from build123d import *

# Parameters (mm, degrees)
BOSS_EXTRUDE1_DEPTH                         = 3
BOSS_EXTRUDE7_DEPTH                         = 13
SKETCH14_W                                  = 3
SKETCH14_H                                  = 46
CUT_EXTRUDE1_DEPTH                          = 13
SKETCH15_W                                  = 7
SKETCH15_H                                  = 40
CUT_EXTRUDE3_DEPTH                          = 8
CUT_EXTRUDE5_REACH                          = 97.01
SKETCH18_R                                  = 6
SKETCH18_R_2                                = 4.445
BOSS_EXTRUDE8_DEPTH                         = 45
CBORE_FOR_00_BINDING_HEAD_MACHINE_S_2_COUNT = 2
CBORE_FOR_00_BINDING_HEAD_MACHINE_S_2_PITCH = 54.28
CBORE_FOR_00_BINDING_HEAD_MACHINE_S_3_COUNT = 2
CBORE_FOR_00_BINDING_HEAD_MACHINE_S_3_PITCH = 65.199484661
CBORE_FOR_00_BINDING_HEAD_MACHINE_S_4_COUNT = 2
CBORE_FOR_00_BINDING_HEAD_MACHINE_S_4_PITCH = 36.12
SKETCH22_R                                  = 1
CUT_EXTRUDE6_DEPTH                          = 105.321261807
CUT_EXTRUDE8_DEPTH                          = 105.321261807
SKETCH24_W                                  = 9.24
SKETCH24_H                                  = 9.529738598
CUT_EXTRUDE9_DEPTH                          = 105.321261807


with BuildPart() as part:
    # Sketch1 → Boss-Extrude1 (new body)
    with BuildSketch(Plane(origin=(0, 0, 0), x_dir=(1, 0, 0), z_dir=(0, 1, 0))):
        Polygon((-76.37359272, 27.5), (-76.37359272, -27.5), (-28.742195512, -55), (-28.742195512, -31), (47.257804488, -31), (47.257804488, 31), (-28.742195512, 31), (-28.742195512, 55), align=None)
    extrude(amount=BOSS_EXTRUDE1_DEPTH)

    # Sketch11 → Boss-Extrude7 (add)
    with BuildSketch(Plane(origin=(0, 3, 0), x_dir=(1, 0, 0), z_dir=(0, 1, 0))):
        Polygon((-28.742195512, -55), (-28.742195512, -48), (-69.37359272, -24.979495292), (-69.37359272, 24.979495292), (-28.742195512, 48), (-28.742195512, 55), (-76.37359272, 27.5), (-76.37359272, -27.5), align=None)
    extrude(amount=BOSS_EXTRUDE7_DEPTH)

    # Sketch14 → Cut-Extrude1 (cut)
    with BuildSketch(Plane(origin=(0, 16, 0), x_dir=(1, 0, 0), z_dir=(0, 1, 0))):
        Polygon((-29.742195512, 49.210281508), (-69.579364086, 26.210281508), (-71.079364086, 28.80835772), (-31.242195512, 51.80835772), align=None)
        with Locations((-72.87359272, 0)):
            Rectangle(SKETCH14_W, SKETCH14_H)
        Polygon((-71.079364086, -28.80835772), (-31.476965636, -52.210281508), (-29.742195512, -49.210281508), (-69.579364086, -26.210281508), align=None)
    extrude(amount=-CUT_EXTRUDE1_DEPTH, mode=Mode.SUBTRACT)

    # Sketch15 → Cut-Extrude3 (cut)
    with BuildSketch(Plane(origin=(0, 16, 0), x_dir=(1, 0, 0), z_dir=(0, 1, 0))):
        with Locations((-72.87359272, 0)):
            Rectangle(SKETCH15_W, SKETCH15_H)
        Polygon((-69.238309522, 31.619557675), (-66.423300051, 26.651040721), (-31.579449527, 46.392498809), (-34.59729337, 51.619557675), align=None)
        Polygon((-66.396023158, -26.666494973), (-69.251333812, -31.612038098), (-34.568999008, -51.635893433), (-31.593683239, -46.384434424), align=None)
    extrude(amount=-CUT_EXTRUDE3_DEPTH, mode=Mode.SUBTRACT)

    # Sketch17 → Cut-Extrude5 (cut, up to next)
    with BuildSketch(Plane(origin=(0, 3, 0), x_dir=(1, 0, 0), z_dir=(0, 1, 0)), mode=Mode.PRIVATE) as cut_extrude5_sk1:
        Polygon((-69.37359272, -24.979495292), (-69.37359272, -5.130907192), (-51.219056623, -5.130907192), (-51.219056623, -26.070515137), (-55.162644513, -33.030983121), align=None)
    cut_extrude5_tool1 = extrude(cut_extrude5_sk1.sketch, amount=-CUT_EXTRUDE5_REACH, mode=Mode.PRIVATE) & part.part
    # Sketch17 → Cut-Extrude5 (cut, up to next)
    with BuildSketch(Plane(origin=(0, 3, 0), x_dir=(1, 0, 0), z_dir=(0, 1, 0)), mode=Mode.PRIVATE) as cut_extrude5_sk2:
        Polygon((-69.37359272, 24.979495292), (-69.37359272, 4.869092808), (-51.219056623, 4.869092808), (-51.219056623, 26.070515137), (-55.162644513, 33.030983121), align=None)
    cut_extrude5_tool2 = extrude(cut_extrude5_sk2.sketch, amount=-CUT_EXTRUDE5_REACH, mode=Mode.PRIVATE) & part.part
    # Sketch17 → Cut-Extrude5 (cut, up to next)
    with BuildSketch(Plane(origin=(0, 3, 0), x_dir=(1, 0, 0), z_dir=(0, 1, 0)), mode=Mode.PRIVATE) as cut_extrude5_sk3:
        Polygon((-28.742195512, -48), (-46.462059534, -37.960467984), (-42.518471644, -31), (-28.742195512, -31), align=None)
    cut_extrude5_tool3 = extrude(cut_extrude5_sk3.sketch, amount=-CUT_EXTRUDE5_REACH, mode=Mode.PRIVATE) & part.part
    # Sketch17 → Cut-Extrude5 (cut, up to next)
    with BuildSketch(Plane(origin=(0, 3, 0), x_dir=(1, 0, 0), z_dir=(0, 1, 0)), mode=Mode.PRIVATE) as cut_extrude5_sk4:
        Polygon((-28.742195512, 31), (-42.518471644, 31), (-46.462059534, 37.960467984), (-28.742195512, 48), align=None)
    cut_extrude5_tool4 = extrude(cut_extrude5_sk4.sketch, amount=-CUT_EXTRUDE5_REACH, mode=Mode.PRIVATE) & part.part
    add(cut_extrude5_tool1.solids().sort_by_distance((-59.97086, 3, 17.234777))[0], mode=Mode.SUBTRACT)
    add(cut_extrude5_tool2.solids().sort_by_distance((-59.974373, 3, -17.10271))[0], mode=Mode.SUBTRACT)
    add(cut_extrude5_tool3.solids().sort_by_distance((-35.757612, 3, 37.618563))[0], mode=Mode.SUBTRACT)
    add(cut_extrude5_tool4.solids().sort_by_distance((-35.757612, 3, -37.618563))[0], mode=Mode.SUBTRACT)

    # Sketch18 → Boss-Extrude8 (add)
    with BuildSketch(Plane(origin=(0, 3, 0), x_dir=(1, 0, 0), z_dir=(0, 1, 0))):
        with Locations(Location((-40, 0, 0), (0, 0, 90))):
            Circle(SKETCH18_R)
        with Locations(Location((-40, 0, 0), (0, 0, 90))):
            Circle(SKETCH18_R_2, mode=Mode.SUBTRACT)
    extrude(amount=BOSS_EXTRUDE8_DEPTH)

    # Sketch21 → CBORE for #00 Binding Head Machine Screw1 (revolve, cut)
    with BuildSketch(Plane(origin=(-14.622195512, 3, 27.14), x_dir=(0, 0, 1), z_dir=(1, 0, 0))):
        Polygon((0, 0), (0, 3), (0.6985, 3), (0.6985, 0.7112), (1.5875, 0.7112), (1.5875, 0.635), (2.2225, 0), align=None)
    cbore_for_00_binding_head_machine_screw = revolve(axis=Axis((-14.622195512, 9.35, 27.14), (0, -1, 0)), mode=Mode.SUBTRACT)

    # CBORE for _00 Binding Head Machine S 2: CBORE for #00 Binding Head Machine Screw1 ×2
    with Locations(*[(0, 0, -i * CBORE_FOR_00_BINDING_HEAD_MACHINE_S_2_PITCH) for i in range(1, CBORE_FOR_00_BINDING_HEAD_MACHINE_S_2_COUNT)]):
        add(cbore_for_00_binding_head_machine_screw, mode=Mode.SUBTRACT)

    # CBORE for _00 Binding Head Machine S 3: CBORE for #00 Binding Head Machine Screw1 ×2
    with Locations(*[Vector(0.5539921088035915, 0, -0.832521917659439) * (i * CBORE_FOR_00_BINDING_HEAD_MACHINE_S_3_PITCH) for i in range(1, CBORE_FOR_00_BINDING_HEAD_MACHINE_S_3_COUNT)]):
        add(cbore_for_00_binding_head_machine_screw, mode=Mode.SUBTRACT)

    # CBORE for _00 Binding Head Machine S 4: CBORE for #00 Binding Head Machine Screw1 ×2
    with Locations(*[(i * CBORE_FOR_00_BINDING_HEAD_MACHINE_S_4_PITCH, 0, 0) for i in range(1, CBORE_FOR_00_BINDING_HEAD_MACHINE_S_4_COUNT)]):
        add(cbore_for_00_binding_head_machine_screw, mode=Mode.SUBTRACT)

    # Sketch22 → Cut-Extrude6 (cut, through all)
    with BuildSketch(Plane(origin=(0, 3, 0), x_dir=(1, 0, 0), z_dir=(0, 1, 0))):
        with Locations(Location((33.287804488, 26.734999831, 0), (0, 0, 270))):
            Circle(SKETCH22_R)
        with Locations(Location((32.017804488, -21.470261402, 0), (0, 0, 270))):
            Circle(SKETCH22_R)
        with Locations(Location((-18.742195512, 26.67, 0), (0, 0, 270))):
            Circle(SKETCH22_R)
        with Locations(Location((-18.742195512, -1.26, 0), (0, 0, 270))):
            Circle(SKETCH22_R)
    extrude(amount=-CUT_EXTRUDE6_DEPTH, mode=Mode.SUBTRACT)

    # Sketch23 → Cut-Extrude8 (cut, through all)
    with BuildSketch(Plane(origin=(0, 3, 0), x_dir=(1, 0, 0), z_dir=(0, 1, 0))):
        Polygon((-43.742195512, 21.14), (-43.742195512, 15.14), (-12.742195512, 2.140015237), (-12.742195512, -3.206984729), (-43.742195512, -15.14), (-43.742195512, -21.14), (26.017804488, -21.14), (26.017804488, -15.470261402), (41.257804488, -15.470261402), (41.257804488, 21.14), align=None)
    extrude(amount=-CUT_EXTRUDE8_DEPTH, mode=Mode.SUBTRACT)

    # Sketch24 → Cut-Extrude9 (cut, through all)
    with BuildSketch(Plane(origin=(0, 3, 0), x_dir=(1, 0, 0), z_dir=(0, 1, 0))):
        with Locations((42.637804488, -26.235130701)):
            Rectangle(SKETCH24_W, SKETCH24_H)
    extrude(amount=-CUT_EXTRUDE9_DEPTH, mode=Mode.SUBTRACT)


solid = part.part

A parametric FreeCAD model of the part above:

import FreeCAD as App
import Part
import Sketcher

V = App.Vector
Q = App.Units.Quantity


def add_polygon(sketch, points):
    """Adds a closed chain of lines whose ends are joined by coincident constraints."""
    first, n = sketch.GeometryCount, len(points)
    for a, b in zip(points, points[1:] + points[:1]):
        sketch.addGeometry(Part.LineSegment(App.Vector(*a, 0), App.Vector(*b, 0)), False)
    for i in range(n):
        sketch.addConstraint(Sketcher.Constraint("Coincident", first + i, 2, first + (i + 1) % n, 1))

doc = App.newDocument("Part")
body = doc.addObject("PartDesign::Body", "Body")

sketch1 = body.newObject("Sketcher::SketchObject", "Sketch")
sketch1.AttachmentSupport = (doc.getObject("XZ_Plane"), [""])
sketch1.MapMode = "FlatFace"
add_polygon(sketch1, [(-76, -28), (-76, 28), (-29, 55), (-29, 31), (47, 31), (47, -31), (-29, -31), (-29, -55)])
sketch1.addConstraint(Sketcher.Constraint("Vertical", 0))
sketch1.addConstraint(Sketcher.Constraint("Vertical", 2))
sketch1.addConstraint(Sketcher.Constraint("Horizontal", 3))
sketch1.addConstraint(Sketcher.Constraint("Vertical", 4))
sketch1.addConstraint(Sketcher.Constraint("Horizontal", 5))
sketch1.addConstraint(Sketcher.Constraint("Vertical", 6))
sketch1.addConstraint(Sketcher.Constraint("Symmetric", 2, 2, 5, 2, -1))
sketch1.addConstraint(Sketcher.Constraint("Equal", 2, 6))
sketch1.addConstraint(Sketcher.Constraint("Equal", 1, 7))
sketch1.addConstraint(Sketcher.Constraint("DistanceX", 3, 1, 3, 2, Q("76 mm")))
sketch1.addConstraint(Sketcher.Constraint("DistanceY", 0, 1, 0, 2, Q("55 mm")))
sketch1.addConstraint(Sketcher.Constraint("DistanceY", 2, 2, 2, 1, Q("24 mm")))
sketch1.addConstraint(Sketcher.Constraint("DistanceY", 4, 2, 4, 1, Q("62 mm")))
sketch1.addConstraint(Sketcher.Constraint("Angle", 1, Q("30 deg")))
sketch1.addConstraint(Sketcher.Constraint("DistanceX", 0, 2, -1, 1, Q("76.373593 mm")))
pad1 = body.newObject("PartDesign::Pad", "Pad")
pad1.Profile = sketch1
pad1.Length = 3
pad1.Reversed = True

sketch2 = body.newObject("Sketcher::SketchObject", "Sketch001")
sketch2.AttachmentSupport = (doc.getObject("XZ_Plane"), [""])
sketch2.MapMode = "FlatFace"
sketch2.AttachmentOffset = App.Placement(V(0, 0, -3), App.Rotation())
add_polygon(sketch2, [(-29, 55), (-29, 48), (-69, 25), (-69, -25), (-29, -48), (-29, -55), (-76, -28), (-76, 28)])
sketch2.addConstraint(Sketcher.Constraint("Vertical", 0))
sketch2.addConstraint(Sketcher.Constraint("Vertical", 2))
sketch2.addConstraint(Sketcher.Constraint("Vertical", 4))
sketch2.addConstraint(Sketcher.Constraint("Vertical", 6))
sketch2.addConstraint(Sketcher.Constraint("Symmetric", 0, 2, 3, 2, -1))
sketch2.addConstraint(Sketcher.Constraint("Equal", 0, 4))
sketch2.addConstraint(Sketcher.Constraint("Equal", 1, 3))
sketch2.addConstraint(Sketcher.Constraint("Equal", 5, 7))
sketch2.addConstraint(Sketcher.Constraint("DistanceY", 0, 2, 0, 1, Q("7 mm")))
sketch2.addConstraint(Sketcher.Constraint("DistanceY", 6, 1, 6, 2, Q("55 mm")))
sketch2.addConstraint(Sketcher.Constraint("Angle", 5, Q("150 deg")))
sketch2.addConstraint(Sketcher.Constraint("Distance", 5, Q("55 mm")))
sketch2.addConstraint(Sketcher.Constraint("DistanceX", 5, 2, 2, 2, Q("7 mm")))
sketch2.addConstraint(Sketcher.Constraint("DistanceY", 2, 2, 2, 1, Q("49.958991 mm")))
sketch2.addConstraint(Sketcher.Constraint("DistanceX", 0, 2, -1, 1, Q("28.742196 mm")))
pad2 = body.newObject("PartDesign::Pad", "Pad001")
pad2.Profile = sketch2
pad2.Length = 13
pad2.Reversed = True

sketch3 = body.newObject("Sketcher::SketchObject", "Sketch002")
sketch3.AttachmentSupport = (doc.getObject("XZ_Plane"), [""])
sketch3.MapMode = "FlatFace"
sketch3.AttachmentOffset = App.Placement(V(0, 0, -16), App.Rotation())
add_polygon(sketch3, [(-69.6, -26.2), (-29.7, -49.2), (-31.2, -51.8), (-71.1, -28.8)])
add_polygon(sketch3, [(-74.4, -23), (-74.4, 23), (-71.4, 23), (-71.4, -23)])
add_polygon(sketch3, [(-71.1, 28.8), (-31.5, 52.2), (-29.7, 49.2), (-69.6, 26.2)])
sketch3.addConstraint(Sketcher.Constraint("Vertical", 4))
sketch3.addConstraint(Sketcher.Constraint("Horizontal", 5))
sketch3.addConstraint(Sketcher.Constraint("Vertical", 6))
sketch3.addConstraint(Sketcher.Constraint("Horizontal", 7))
sketch3.addConstraint(Sketcher.Constraint("Symmetric", 0, 2, 9, 2, -1))
sketch3.addConstraint(Sketcher.Constraint("Symmetric", 3, 2, 10, 2, -1))
sketch3.addConstraint(Sketcher.Constraint("Symmetric", 2, 2, 11, 2, -1))
sketch3.addConstraint(Sketcher.Constraint("Perpendicular", 0, 1))
sketch3.addConstraint(Sketcher.Constraint("Perpendicular", 1, 2))
sketch3.addConstraint(Sketcher.Constraint("Perpendicular", 2, 3))
sketch3.addConstraint(Sketcher.Constraint("Equal", 2, 8))
sketch3.addConstraint(Sketcher.Constraint("DistanceX", 5, 1, 5, 2, Q("3 mm")))
sketch3.addConstraint(Sketcher.Constraint("DistanceY", 4, 1, 4, 2, Q("46 mm")))
sketch3.addConstraint(Sketcher.Constraint("Angle", 0, Q("-30 deg")))
sketch3.addConstraint(Sketcher.Constraint("Distance", 0, Q("46 mm")))
sketch3.addConstraint(Sketcher.Constraint("Distance", 1, Q("3 mm")))
sketch3.addConstraint(Sketcher.Constraint("DistanceY", -1, 1, 4, 2, Q("23 mm")))
sketch3.addConstraint(Sketcher.Constraint("DistanceY", 9, 2, 8, 2, Q("3 mm")))
sketch3.addConstraint(Sketcher.Constraint("DistanceY", 0, 2, -1, 1, Q("49.210282 mm")))
sketch3.addConstraint(Sketcher.Constraint("DistanceX", 4, 2, 3, 2, Q("4.794229 mm")))
sketch3.addConstraint(Sketcher.Constraint("DistanceX", 0, 2, -1, 1, Q("29.742196 mm")))
pocket1 = body.newObject("PartDesign::Pocket", "Pocket")
pocket1.Profile = sketch3
pocket1.Length = 13
pocket1.Reversed = True

sketch4 = body.newObject("Sketcher::SketchObject", "Sketch003")
sketch4.AttachmentSupport = (doc.getObject("XZ_Plane"), [""])
sketch4.MapMode = "FlatFace"
sketch4.AttachmentOffset = App.Placement(V(0, 0, -16), App.Rotation())
add_polygon(sketch4, [(-76, -20), (-76, 20), (-69, 20), (-69, -20)])
add_polygon(sketch4, [(-69, -32), (-66, -27), (-32, -46), (-35, -52)])
add_polygon(sketch4, [(-66, 27), (-69, 32), (-35, 52), (-32, 46)])
sketch4.addConstraint(Sketcher.Constraint("Vertical", 0))
sketch4.addConstraint(Sketcher.Constraint("Horizontal", 1))
sketch4.addConstraint(Sketcher.Constraint("Vertical", 2))
sketch4.addConstraint(Sketcher.Constraint("Horizontal", 3))
sketch4.addConstraint(Sketcher.Constraint("Perpendicular", 4, 5))
sketch4.addConstraint(Sketcher.Constraint("Perpendicular", 6, 7))
sketch4.addConstraint(Sketcher.Constraint("Perpendicular", 8, 9))
sketch4.addConstraint(Sketcher.Constraint("Perpendicular", 10, 11))
sketch4.addConstraint(Sketcher.Constraint("Equal", 5, 9))
sketch4.addConstraint(Sketcher.Constraint("Equal", 7, 11))
sketch4.addConstraint(Sketcher.Constraint("DistanceX", 1, 1, 1, 2, Q("7 mm")))
sketch4.addConstraint(Sketcher.Constraint("DistanceY", 0, 1, 0, 2, Q("40 mm")))
sketch4.addConstraint(Sketcher.Constraint("Angle", 6, Q("-120 deg")))
sketch4.addConstraint(Sketcher.Constraint("Angle", 8, Q("120 deg")))
sketch4.addConstraint(Sketcher.Constraint("Distance", 7, Q("40 mm")))
sketch4.addConstraint(Sketcher.Constraint("DistanceY", -1, 1, 0, 2, Q("20 mm")))
sketch4.addConstraint(Sketcher.Constraint("DistanceX", 9, 2, -1, 1, Q("34.568999 mm")))
sketch4.addConstraint(Sketcher.Constraint("DistanceX", 4, 2, -1, 1, Q("66.4233 mm")))
sketch4.addConstraint(Sketcher.Constraint("DistanceY", 5, 2, -1, 1, Q("46.392499 mm")))
sketch4.addConstraint(Sketcher.Constraint("DistanceX", 2, 2, 6, 2, Q("34.776299 mm")))
sketch4.addConstraint(Sketcher.Constraint("DistanceY", 11, 2, 9, 2, Q("24.969398 mm")))
sketch4.addConstraint(Sketcher.Constraint("Distance", 5, Q("40.04771 mm")))
sketch4.addConstraint(Sketcher.Constraint("DistanceY", 4, 2, -1, 1, Q("26.651041 mm")))
sketch4.addConstraint(Sketcher.Constraint("DistanceY", -1, 1, 8, 2, Q("31.612038 mm")))
pocket2 = body.newObject("PartDesign::Pocket", "Pocket001")
pocket2.Profile = sketch4
pocket2.Length = 8
pocket2.Reversed = True

sketch5 = body.newObject("Sketcher::SketchObject", "Sketch004")
sketch5.AttachmentSupport = (doc.getObject("XZ_Plane"), [""])
sketch5.MapMode = "FlatFace"
sketch5.AttachmentOffset = App.Placement(V(0, 0, -3), App.Rotation())
add_polygon(sketch5, [(-69, 5), (-69, 25), (-55, 33), (-51, 26), (-51, 5)])
sketch5.addConstraint(Sketcher.Constraint("Vertical", 0))
sketch5.addConstraint(Sketcher.Constraint("Vertical", 3))
sketch5.addConstraint(Sketcher.Constraint("Horizontal", 4))
sketch5.addConstraint(Sketcher.Constraint("Perpendicular", 1, 2))
sketch5.addConstraint(Sketcher.Constraint("Distance", 2, Q("8 mm")))
sketch5.addConstraint(Sketcher.Constraint("DistanceY", 0, 1, 0, 2, Q("19.848588 mm")))
sketch5.addConstraint(Sketcher.Constraint("DistanceX", 4, 2, 4, 1, Q("18.154536 mm")))
sketch5.addConstraint(Sketcher.Constraint("DistanceY", 3, 2, 3, 1, Q("20.939608 mm")))
sketch5.addConstraint(Sketcher.Constraint("DistanceX", 0, 2, -1, 1, Q("69.373593 mm")))
sketch5.addConstraint(Sketcher.Constraint("DistanceY", -1, 1, 0, 2, Q("24.979495 mm")))
pocket3 = body.newObject("PartDesign::Pocket", "Pocket002")
pocket3.Profile = sketch5
pocket3.Type = "UpToFirst"
pocket3.Reversed = True

sketch6 = body.newObject("Sketcher::SketchObject", "Sketch005")
sketch6.AttachmentSupport = (doc.getObject("XZ_Plane"), [""])
sketch6.MapMode = "FlatFace"
sketch6.AttachmentOffset = App.Placement(V(0, 0, -3), App.Rotation())
add_polygon(sketch6, [(-69, -25), (-69, -5), (-51, -5), (-51, -26), (-55, -33)])
sketch6.addConstraint(Sketcher.Constraint("Vertical", 0))
sketch6.addConstraint(Sketcher.Constraint("Horizontal", 1))
sketch6.addConstraint(Sketcher.Constraint("Vertical", 2))
sketch6.addConstraint(Sketcher.Constraint("Perpendicular", 3, 4))
sketch6.addConstraint(Sketcher.Constraint("Distance", 3, Q("8 mm")))
sketch6.addConstraint(Sketcher.Constraint("DistanceX", 1, 1, 1, 2, Q("18.154536 mm")))
sketch6.addConstraint(Sketcher.Constraint("DistanceY", 0, 1, 0, 2, Q("20.110402 mm")))
sketch6.addConstraint(Sketcher.Constraint("DistanceY", 2, 2, 2, 1, Q("21.201422 mm")))
sketch6.addConstraint(Sketcher.Constraint("DistanceX", 0, 2, -1, 1, Q("69.373593 mm")))
sketch6.addConstraint(Sketcher.Constraint("DistanceY", 0, 2, -1, 1, Q("4.869093 mm")))
pocket4 = body.newObject("PartDesign::Pocket", "Pocket003")
pocket4.Profile = sketch6
pocket4.Type = "UpToFirst"
pocket4.Reversed = True

sketch7 = body.newObject("Sketcher::SketchObject", "Sketch006")
sketch7.AttachmentSupport = (doc.getObject("XZ_Plane"), [""])
sketch7.MapMode = "FlatFace"
sketch7.AttachmentOffset = App.Placement(V(0, 0, -3), App.Rotation())
add_polygon(sketch7, [(-46, 38), (-29, 48), (-29, 31), (-43, 31)])
sketch7.addConstraint(Sketcher.Constraint("Vertical", 1))
sketch7.addConstraint(Sketcher.Constraint("Horizontal", 2))
sketch7.addConstraint(Sketcher.Constraint("Perpendicular", 0, 3))
sketch7.addConstraint(Sketcher.Constraint("DistanceY", 1, 2, 1, 1, Q("17 mm")))
sketch7.addConstraint(Sketcher.Constraint("Distance", 3, Q("8 mm")))
sketch7.addConstraint(Sketcher.Constraint("DistanceY", -1, 1, 0, 2, Q("48 mm")))
sketch7.addConstraint(Sketcher.Constraint("Distance", 0, Q("20.36629 mm")))
sketch7.addConstraint(Sketcher.Constraint("DistanceX", 2, 2, -1, 1, Q("42.518472 mm")))
pocket5 = body.newObject("PartDesign::Pocket", "Pocket004")
pocket5.Profile = sketch7
pocket5.Type = "UpToFirst"
pocket5.Reversed = True

sketch8 = body.newObject("Sketcher::SketchObject", "Sketch007")
sketch8.AttachmentSupport = (doc.getObject("XZ_Plane"), [""])
sketch8.MapMode = "FlatFace"
sketch8.AttachmentOffset = App.Placement(V(0, 0, -3), App.Rotation())
add_polygon(sketch8, [(-43, -31), (-29, -31), (-29, -48), (-46, -38)])
sketch8.addConstraint(Sketcher.Constraint("Horizontal", 0))
sketch8.addConstraint(Sketcher.Constraint("Vertical", 1))
sketch8.addConstraint(Sketcher.Constraint("Perpendicular", 2, 3))
sketch8.addConstraint(Sketcher.Constraint("DistanceY", 1, 2, 1, 1, Q("17 mm")))
sketch8.addConstraint(Sketcher.Constraint("Distance", 3, Q("8 mm")))
sketch8.addConstraint(Sketcher.Constraint("DistanceY", 0, 2, -1, 1, Q("31 mm")))
sketch8.addConstraint(Sketcher.Constraint("Distance", 2, Q("20.36629 mm")))
sketch8.addConstraint(Sketcher.Constraint("DistanceX", 2, 2, -1, 1, Q("46.46206 mm")))
pocket6 = body.newObject("PartDesign::Pocket", "Pocket005")
pocket6.Profile = sketch8
pocket6.Type = "UpToFirst"
pocket6.Reversed = True

sketch9 = body.newObject("Sketcher::SketchObject", "Sketch008")
sketch9.AttachmentSupport = (doc.getObject("XZ_Plane"), [""])
sketch9.MapMode = "FlatFace"
sketch9.AttachmentOffset = App.Placement(V(0, 0, -3), App.Rotation())
sketch9.addGeometry(Part.Circle(V(-40, 0, 0), V(0, 0, 1), 6), False)
sketch9.addGeometry(Part.Circle(V(-40, 0, 0), V(0, 0, 1), 4.4), False)
sketch9.addConstraint(Sketcher.Constraint("Coincident", 1, 3, 0, 3))
sketch9.addConstraint(Sketcher.Constraint("PointOnObject", 0, 3, -1))
sketch9.addConstraint(Sketcher.Constraint("Diameter", 0, Q("12 mm")))
sketch9.addConstraint(Sketcher.Constraint("Diameter", 1, Q("8.89 mm")))
sketch9.addConstraint(Sketcher.Constraint("DistanceX", 0, 3, -1, 1, Q("40 mm")))
pad3 = body.newObject("PartDesign::Pad", "Pad002")
pad3.Profile = sketch9
pad3.Length = 45
pad3.Reversed = True

sketch10 = body.newObject("Sketcher::SketchObject", "Sketch009")
sketch10.AttachmentSupport = (doc.getObject("YZ_Plane"), [""])
sketch10.MapMode = "FlatFace"
sketch10.AttachmentOffset = App.Placement(V(0, 0, -14.622196), App.Rotation())
add_polygon(sketch10, [(0, 27.14), (3, 27.14), (3, 29.36), (2.37, 28.73), (2.29, 28.73), (2.29, 27.84), (0, 27.84)])
sketch10.addGeometry(Part.LineSegment(V(3, 27.14, 0), V(0, 27.14, 0)), True)
sketch10.addConstraint(Sketcher.Constraint("Horizontal", 0))
sketch10.addConstraint(Sketcher.Constraint("Vertical", 1))
sketch10.addConstraint(Sketcher.Constraint("Horizontal", 3))
sketch10.addConstraint(Sketcher.Constraint("Vertical", 4))
sketch10.addConstraint(Sketcher.Constraint("Horizontal", 5))
sketch10.addConstraint(Sketcher.Constraint("Vertical", 6))
sketch10.addConstraint(Sketcher.Constraint("Horizontal", 7))
sketch10.addConstraint(Sketcher.Constraint("Coincident", 7, 1, 0, 2))
sketch10.addConstraint(Sketcher.Constraint("PointOnObject", 5, 2, -2))
sketch10.addConstraint(Sketcher.Constraint("PointOnObject", 7, 2, -2))
sketch10.addConstraint(Sketcher.Constraint("DistanceX", 0, 1, 0, 2, Q("3 mm")))
sketch10.addConstraint(Sketcher.Constraint("Angle", 2, Q("-135 deg")))
sketch10.addConstraint(Sketcher.Constraint("DistanceY", 4, 2, 4, 1, Q("0.889 mm")))
sketch10.addConstraint(Sketcher.Constraint("DistanceY", -1, 1, 0, 2, Q("27.14 mm")))
sketch10.addConstraint(Sketcher.Constraint("DistanceX", 3, 2, 3, 1, Q("0.0762 mm")))
sketch10.addConstraint(Sketcher.Constraint("DistanceX", 5, 2, 5, 1, Q("2.2888 mm")))
sketch10.addConstraint(Sketcher.Constraint("DistanceY", 1, 1, 1, 2, Q("2.2225 mm")))
groove = body.newObject("PartDesign::Groove", "Groove")
groove.Profile = sketch10
groove.ReferenceAxis = (sketch10, ["Axis0"])
groove.Angle = 360
doc.recompute()

linearpattern = body.newObject("PartDesign::LinearPattern", "LinearPattern")
linearpattern.Originals = [groove]
linearpattern.Direction = (doc.getObject("Z_Axis"), [""])
linearpattern.Mode = "offset"
linearpattern.Offset = 54.28
linearpattern.Occurrences = 2
linearpattern.Reversed = True
body.Tip = linearpattern
doc.recompute()

datumline = body.newObject("PartDesign::Line", "DatumLine")
datumline.Placement = App.Placement(V(0, 0, 0), App.Rotation(V(0, 0, 1), V(0.553992109, 0, -0.832521918)))
linearpattern2 = body.newObject("PartDesign::LinearPattern", "LinearPattern001")
linearpattern2.Originals = [groove]
linearpattern2.Direction = (datumline, [""])
linearpattern2.Mode = "offset"
linearpattern2.Offset = 65.199485
linearpattern2.Occurrences = 2
body.Tip = linearpattern2
doc.recompute()

linearpattern3 = body.newObject("PartDesign::LinearPattern", "LinearPattern002")
linearpattern3.Originals = [groove]
linearpattern3.Direction = (doc.getObject("X_Axis"), [""])
linearpattern3.Mode = "offset"
linearpattern3.Offset = 36.12
linearpattern3.Occurrences = 2
body.Tip = linearpattern3

sketch11 = body.newObject("Sketcher::SketchObject", "Sketch010")
sketch11.AttachmentSupport = (doc.getObject("XZ_Plane"), [""])
sketch11.MapMode = "FlatFace"
sketch11.AttachmentOffset = App.Placement(V(0, 0, -3), App.Rotation())
sketch11.addGeometry(Part.Circle(V(33.3, -26.7, 0), V(0, 0, 1), 1), False)
sketch11.addGeometry(Part.Circle(V(32, 21.5, 0), V(0, 0, 1), 1), False)
sketch11.addGeometry(Part.Circle(V(-18.7, -26.7, 0), V(0, 0, 1), 1), False)
sketch11.addGeometry(Part.Circle(V(-18.7, 1.3, 0), V(0, 0, 1), 1), False)
sketch11.addConstraint(Sketcher.Constraint("Equal", 0, 1))
sketch11.addConstraint(Sketcher.Constraint("Equal", 1, 2))
sketch11.addConstraint(Sketcher.Constraint("Equal", 2, 3))
sketch11.addConstraint(Sketcher.Constraint("Vertical", 2, 3, 3, 3))
sketch11.addConstraint(Sketcher.Constraint("Diameter", 0, Q("2 mm")))
sketch11.addConstraint(Sketcher.Constraint("DistanceY", 2, 3, -1, 1, Q("26.67 mm")))
sketch11.addConstraint(Sketcher.Constraint("DistanceY", -1, 1, 3, 3, Q("1.26 mm")))
sketch11.addConstraint(Sketcher.Constraint("DistanceX", 1, 3, 0, 3, Q("1.27 mm")))
sketch11.addConstraint(Sketcher.Constraint("DistanceX", 2, 3, 0, 3, Q("52.03 mm")))
sketch11.addConstraint(Sketcher.Constraint("DistanceY", 0, 3, -1, 1, Q("26.735 mm")))
sketch11.addConstraint(Sketcher.Constraint("DistanceY", -1, 1, 1, 3, Q("21.470261 mm")))
sketch11.addConstraint(Sketcher.Constraint("DistanceX", -1, 1, 0, 3, Q("33.287804 mm")))
pocket7 = body.newObject("PartDesign::Pocket", "Pocket006")
pocket7.Profile = sketch11
pocket7.Type = "ThroughAll"
pocket7.Reversed = True

sketch12 = body.newObject("Sketcher::SketchObject", "Sketch011")
sketch12.AttachmentSupport = (doc.getObject("XZ_Plane"), [""])
sketch12.MapMode = "FlatFace"
sketch12.AttachmentOffset = App.Placement(V(0, 0, -3), App.Rotation())
add_polygon(sketch12, [(-44, -21), (-44, -15), (-13, -2), (-13, 3), (-44, 15), (-44, 21), (26, 21), (26, 15), (41, 15), (41, -21)])
sketch12.addConstraint(Sketcher.Constraint("Vertical", 0))
sketch12.addConstraint(Sketcher.Constraint("Vertical", 2))
sketch12.addConstraint(Sketcher.Constraint("Vertical", 4))
sketch12.addConstraint(Sketcher.Constraint("Horizontal", 5))
sketch12.addConstraint(Sketcher.Constraint("Vertical", 6))
sketch12.addConstraint(Sketcher.Constraint("Horizontal", 7))
sketch12.addConstraint(Sketcher.Constraint("Vertical", 8))
sketch12.addConstraint(Sketcher.Constraint("Horizontal", 9))
sketch12.addConstraint(Sketcher.Constraint("Symmetric", 0, 2, 3, 2, -1))
sketch12.addConstraint(Sketcher.Constraint("Equal", 0, 4))
sketch12.addConstraint(Sketcher.Constraint("DistanceX", 9, 2, 9, 1, Q("85 mm")))
sketch12.addConstraint(Sketcher.Constraint("DistanceY", 0, 1, 0, 2, Q("6 mm")))
sketch12.addConstraint(Sketcher.Constraint("DistanceX", 0, 2, 1, 2, Q("31 mm")))
sketch12.addConstraint(Sketcher.Constraint("DistanceX", 5, 1, 5, 2, Q("69.76 mm")))
sketch12.addConstraint(Sketcher.Constraint("DistanceY", 2, 1, 2, 2, Q("5.347 mm")))
sketch12.addConstraint(Sketcher.Constraint("DistanceY", 0, 2, -1, 1, Q("15.14 mm")))
sketch12.addConstraint(Sketcher.Constraint("DistanceY", 6, 2, 6, 1, Q("5.669739 mm")))
sketch12.addConstraint(Sketcher.Constraint("Distance", 1, Q("33.615467 mm")))
sketch12.addConstraint(Sketcher.Constraint("DistanceX", 0, 2, -1, 1, Q("43.742196 mm")))
pocket8 = body.newObject("PartDesign::Pocket", "Pocket007")
pocket8.Profile = sketch12
pocket8.Type = "ThroughAll"
pocket8.Reversed = True

sketch13 = body.newObject("Sketcher::SketchObject", "Sketch012")
sketch13.AttachmentSupport = (doc.getObject("XZ_Plane"), [""])
sketch13.MapMode = "FlatFace"
sketch13.AttachmentOffset = App.Placement(V(0, 0, -3), App.Rotation())
add_polygon(sketch13, [(38, 21), (38, 31), (47, 31), (47, 21)])
sketch13.addConstraint(Sketcher.Constraint("Vertical", 0))
sketch13.addConstraint(Sketcher.Constraint("Horizontal", 1))
sketch13.addConstraint(Sketcher.Constraint("Vertical", 2))
sketch13.addConstraint(Sketcher.Constraint("Horizontal", 3))
sketch13.addConstraint(Sketcher.Constraint("DistanceY", -1, 1, 0, 2, Q("31 mm")))
sketch13.addConstraint(Sketcher.Constraint("DistanceX", 1, 1, 1, 2, Q("9.24 mm")))
sketch13.addConstraint(Sketcher.Constraint("DistanceY", 0, 1, 0, 2, Q("9.529739 mm")))
sketch13.addConstraint(Sketcher.Constraint("DistanceX", -1, 1, 0, 2, Q("38.017804 mm")))
pocket9 = body.newObject("PartDesign::Pocket", "Pocket008")
pocket9.Profile = sketch13
pocket9.Type = "ThroughAll"
pocket9.Reversed = True

doc.recompute()
